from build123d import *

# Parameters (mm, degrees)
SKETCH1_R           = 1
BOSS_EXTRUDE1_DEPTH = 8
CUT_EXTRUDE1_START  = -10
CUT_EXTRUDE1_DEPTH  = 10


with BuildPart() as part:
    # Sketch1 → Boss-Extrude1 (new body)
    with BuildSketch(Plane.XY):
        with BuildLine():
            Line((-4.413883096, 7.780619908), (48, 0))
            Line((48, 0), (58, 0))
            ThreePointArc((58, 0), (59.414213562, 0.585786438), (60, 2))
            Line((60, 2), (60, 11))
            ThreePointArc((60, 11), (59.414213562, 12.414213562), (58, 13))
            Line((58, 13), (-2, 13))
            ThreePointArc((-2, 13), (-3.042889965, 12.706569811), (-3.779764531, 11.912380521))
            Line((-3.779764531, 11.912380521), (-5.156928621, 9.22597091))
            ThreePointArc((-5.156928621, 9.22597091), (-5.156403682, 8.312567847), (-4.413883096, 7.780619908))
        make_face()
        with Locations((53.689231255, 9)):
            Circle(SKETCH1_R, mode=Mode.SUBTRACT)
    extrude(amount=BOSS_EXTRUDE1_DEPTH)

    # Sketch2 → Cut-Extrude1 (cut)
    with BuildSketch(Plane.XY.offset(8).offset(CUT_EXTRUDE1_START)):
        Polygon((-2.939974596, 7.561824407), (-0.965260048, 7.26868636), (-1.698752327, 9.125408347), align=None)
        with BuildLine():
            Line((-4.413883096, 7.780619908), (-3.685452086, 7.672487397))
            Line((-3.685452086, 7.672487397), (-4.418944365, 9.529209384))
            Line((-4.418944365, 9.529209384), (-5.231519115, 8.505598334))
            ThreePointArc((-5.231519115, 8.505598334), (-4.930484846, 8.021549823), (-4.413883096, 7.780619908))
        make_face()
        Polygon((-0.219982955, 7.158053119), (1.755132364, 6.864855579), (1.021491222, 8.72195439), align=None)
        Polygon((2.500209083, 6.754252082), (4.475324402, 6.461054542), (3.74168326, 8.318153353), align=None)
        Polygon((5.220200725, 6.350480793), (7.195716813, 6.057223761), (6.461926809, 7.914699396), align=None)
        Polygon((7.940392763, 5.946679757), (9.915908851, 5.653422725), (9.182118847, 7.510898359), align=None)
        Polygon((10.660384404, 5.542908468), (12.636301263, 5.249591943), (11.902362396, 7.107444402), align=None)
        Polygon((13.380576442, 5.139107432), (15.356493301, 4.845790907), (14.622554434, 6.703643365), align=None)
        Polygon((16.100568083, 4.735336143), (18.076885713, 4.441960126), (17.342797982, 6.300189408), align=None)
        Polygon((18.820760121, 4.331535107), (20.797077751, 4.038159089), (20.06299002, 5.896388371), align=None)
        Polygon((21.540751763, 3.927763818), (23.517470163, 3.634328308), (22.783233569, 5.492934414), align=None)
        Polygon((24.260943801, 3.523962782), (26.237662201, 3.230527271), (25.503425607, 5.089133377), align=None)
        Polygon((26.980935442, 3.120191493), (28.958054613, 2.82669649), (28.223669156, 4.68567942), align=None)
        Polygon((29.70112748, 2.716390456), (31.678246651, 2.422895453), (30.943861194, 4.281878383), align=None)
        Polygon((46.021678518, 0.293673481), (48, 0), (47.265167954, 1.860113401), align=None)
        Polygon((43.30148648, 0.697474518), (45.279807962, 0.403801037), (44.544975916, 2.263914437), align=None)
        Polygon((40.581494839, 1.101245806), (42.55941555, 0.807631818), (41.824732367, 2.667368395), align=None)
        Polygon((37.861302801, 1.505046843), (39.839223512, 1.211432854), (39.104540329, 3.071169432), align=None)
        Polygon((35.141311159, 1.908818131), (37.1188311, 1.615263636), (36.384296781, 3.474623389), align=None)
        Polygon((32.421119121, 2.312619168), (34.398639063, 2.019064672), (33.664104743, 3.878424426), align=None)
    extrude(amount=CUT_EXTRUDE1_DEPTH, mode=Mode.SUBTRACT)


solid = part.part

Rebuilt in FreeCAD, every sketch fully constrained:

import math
import FreeCAD as App
import Part
import Sketcher
from FreeCAD import Vector
Q = App.Units.Quantity


def add_polygon(sketch, points):
    """Adds a closed chain of lines whose ends are joined by coincident constraints."""
    first, n = sketch.GeometryCount, len(points)
    for a, b in zip(points, points[1:] + points[:1]):
        sketch.addGeometry(Part.LineSegment(App.Vector(*a, 0), App.Vector(*b, 0)), False)
    for i in range(n):
        sketch.addConstraint(Sketcher.Constraint("Coincident", first + i, 2, first + (i + 1) % n, 1))

doc = App.newDocument("Part")
body = doc.addObject("PartDesign::Body", "Body")

# Sketch on XY plane
sketch1 = doc.addObject("Sketcher::SketchObject", "Sketch")
body.addObject(sketch1)
sketch1.AttachmentSupport = (doc.XY_Plane, [""])
sketch1.MapMode = "FlatFace"
sketch1.addGeometry(Part.LineSegment(Vector(-4.4, 7.8, 0), Vector(48, 0, 0)), False)
sketch1.addGeometry(Part.LineSegment(Vector(48, 0, 0), Vector(58, 0, 0)), False)
sketch1.addGeometry(Part.ArcOfCircle(Part.Circle(Vector(58, 2, 0), Vector(0, 0, 1), 2), math.radians(-90), math.radians(0)), False)
sketch1.addGeometry(Part.LineSegment(Vector(60, 2, 0), Vector(60, 11, 0)), False)
sketch1.addGeometry(Part.ArcOfCircle(Part.Circle(Vector(58, 11, 0), Vector(0, 0, 1), 2), math.radians(0), math.radians(90)), False)
sketch1.addGeometry(Part.LineSegment(Vector(58, 13, 0), Vector(-2, 13, 0)), False)
sketch1.addGeometry(Part.ArcOfCircle(Part.Circle(Vector(-2, 11, 0), Vector(0, 0, 1), 2), math.radians(90), math.radians(153)), False)
sketch1.addGeometry(Part.LineSegment(Vector(-3.8, 11.9, 0), Vector(-5.2, 9.2, 0)), False)
sketch1.addGeometry(Part.ArcOfCircle(Part.Circle(Vector(-4.3, 8.8, 0), Vector(0, 0, 1), 1), math.radians(153), math.radians(262)), False)
sketch1.addGeometry(Part.Circle(Vector(53.7, 9, 0), Vector(0, 0, 1), 1), False)
sketch1.addConstraint(Sketcher.Constraint("Coincident", 0, 2, 1, 1))
sketch1.addConstraint(Sketcher.Constraint("Tangent", 1, 2, 2, 1))
sketch1.addConstraint(Sketcher.Constraint("Tangent", 2, 2, 3, 1))
sketch1.addConstraint(Sketcher.Constraint("Tangent", 3, 2, 4, 1))
sketch1.addConstraint(Sketcher.Constraint("Tangent", 4, 2, 5, 1))
sketch1.addConstraint(Sketcher.Constraint("Tangent", 5, 2, 6, 1))
sketch1.addConstraint(Sketcher.Constraint("Tangent", 6, 2, 7, 1))
sketch1.addConstraint(Sketcher.Constraint("Tangent", 7, 2, 8, 1))
sketch1.addConstraint(Sketcher.Constraint("Tangent", 8, 2, 0, 1))
sketch1.addConstraint(Sketcher.Constraint("Horizontal", 1))
sketch1.addConstraint(Sketcher.Constraint("Vertical", 3))
sketch1.addConstraint(Sketcher.Constraint("Horizontal", 5))
sketch1.addConstraint(Sketcher.Constraint("Equal", 2, 4))
sketch1.addConstraint(Sketcher.Constraint("Equal", 4, 6))
sketch1.addConstraint(Sketcher.Constraint("Equal", 8, 9))
sketch1.addConstraint(Sketcher.Constraint("PointOnObject", 0, 2, -1))
sketch1.addConstraint(Sketcher.Constraint("Diameter", 9, Q("2 mm")))
sketch1.addConstraint(Sketcher.Constraint("Radius", 2, Q("2 mm")))
sketch1.addConstraint(Sketcher.Constraint("DistanceX", 1, 1, 1, 2, Q("10 mm")))
sketch1.addConstraint(Sketcher.Constraint("DistanceX", 5, 2, 5, 1, Q("60 mm")))
sketch1.addConstraint(Sketcher.Constraint("DistanceY", 3, 1, 3, 2, Q("9 mm")))
sketch1.addConstraint(Sketcher.Constraint("DistanceX", -1, 1, 2, 3, Q("58 mm")))
sketch1.addConstraint(Sketcher.Constraint("DistanceY", -1, 1, 9, 3, Q("9 mm")))
sketch1.addConstraint(Sketcher.Constraint("DistanceY", 8, 3, 6, 2, Q("3.1426 mm")))
sketch1.addConstraint(Sketcher.Constraint("DistanceY", -1, 1, 8, 3, Q("8.769781 mm")))
sketch1.addConstraint(Sketcher.Constraint("DistanceX", -1, 1, 9, 3, Q("53.689231 mm")))
pad1 = doc.addObject("PartDesign::Pad", "Pad")
body.addObject(pad1)
pad1.Profile = sketch1
pad1.Length = 8

# Sketch on XY plane
sketch2 = doc.addObject("Sketcher::SketchObject", "Sketch001")
body.addObject(sketch2)
sketch2.AttachmentSupport = (doc.XY_Plane, [""])
sketch2.MapMode = "FlatFace"
sketch2.AttachmentOffset = App.Placement(Vector(0, 0, -2), App.Rotation())
add_polygon(sketch2, [(-2.9, 7.6), (-1, 7.3), (-1.7, 9.1)])  # lines 0-2
sketch2.addGeometry(Part.LineSegment(Vector(-4.4, 7.8, 0), Vector(-3.7, 7.7, 0)), False)  # 3
sketch2.addGeometry(Part.LineSegment(Vector(-3.7, 7.7, 0), Vector(-4.4, 9.5, 0)), False)  # 4
sketch2.addGeometry(Part.LineSegment(Vector(-4.4, 9.5, 0), Vector(-5.2, 8.5, 0)), False)  # 5
sketch2.addGeometry(Part.ArcOfCircle(Part.Circle(Vector(-4.3, 8.8, 0), Vector(0, 0, 1), 1), math.radians(-165), math.radians(-98)), False)  # 6
add_polygon(sketch2, [(-0.2, 7.2), (1.8, 6.9), (1, 8.7)])  # lines 7-9
add_polygon(sketch2, [(2.5, 6.8), (4.5, 6.5), (3.7, 8.3)])  # lines 10-12
add_polygon(sketch2, [(5.2, 6.4), (7.2, 6.1), (6.5, 7.9)])  # lines 13-15
add_polygon(sketch2, [(7.9, 5.9), (9.9, 5.7), (9.2, 7.5)])  # lines 16-18
add_polygon(sketch2, [(10.7, 5.5), (12.6, 5.2), (11.9, 7.1)])  # lines 19-21
add_polygon(sketch2, [(13.4, 5.1), (15.4, 4.8), (14.6, 6.7)])  # lines 22-24
add_polygon(sketch2, [(16.1, 4.7), (18.1, 4.4), (17.3, 6.3)])  # lines 25-27
add_polygon(sketch2, [(18.8, 4.3), (20.8, 4), (20.1, 5.9)])  # lines 28-30
add_polygon(sketch2, [(21.5, 3.9), (23.5, 3.6), (22.8, 5.5)])  # lines 31-33
add_polygon(sketch2, [(24.3, 3.5), (26.2, 3.2), (25.5, 5.1)])  # lines 34-36
add_polygon(sketch2, [(27, 3.1), (29, 2.8), (28.2, 4.7)])  # lines 37-39
add_polygon(sketch2, [(29.7, 2.7), (31.7, 2.4), (30.9, 4.3)])  # lines 40-42
add_polygon(sketch2, [(46, 0.3), (48, 0), (47.3, 1.9)])  # lines 43-45
add_polygon(sketch2, [(43.3, 0.7), (45.3, 0.4), (44.5, 2.3)])  # lines 46-48
add_polygon(sketch2, [(40.6, 1.1), (42.6, 0.8), (41.8, 2.7)])  # lines 49-51
add_polygon(sketch2, [(37.9, 1.5), (39.8, 1.2), (39.1, 3.1)])  # lines 52-54
add_polygon(sketch2, [(35.1, 1.9), (37.1, 1.6), (36.4, 3.5)])  # lines 55-57
add_polygon(sketch2, [(32.4, 2.3), (34.4, 2), (33.7, 3.9)])  # lines 58-60
sketch2.addConstraint(Sketcher.Constraint("Coincident", 3, 2, 4, 1))
sketch2.addConstraint(Sketcher.Constraint("Coincident", 4, 2, 5, 1))
sketch2.addConstraint(Sketcher.Constraint("Coincident", 5, 2, 6, 1))
sketch2.addConstraint(Sketcher.Constraint("Tangent", 6, 2, 3, 1))
sketch2.addConstraint(Sketcher.Constraint("PointOnObject", 43, 2, -1))
sketch2.addConstraint(Sketcher.Constraint("Parallel", 0, 3))
sketch2.addConstraint(Sketcher.Constraint("Parallel", 1, 4))
sketch2.addConstraint(Sketcher.Constraint("Parallel", 2, 5))
sketch2.addConstraint(Sketcher.Constraint("Parallel", 3, 7))
sketch2.addConstraint(Sketcher.Constraint("Parallel", 4, 8))
sketch2.addConstraint(Sketcher.Constraint("Parallel", 5, 9))
sketch2.addConstraint(Sketcher.Constraint("Parallel", 7, 10))
sketch2.addConstraint(Sketcher.Constraint("Parallel", 8, 11))
sketch2.addConstraint(Sketcher.Constraint("Parallel", 9, 12))
sketch2.addConstraint(Sketcher.Constraint("Parallel", 10, 13))
sketch2.addConstraint(Sketcher.Constraint("Parallel", 11, 14))
sketch2.addConstraint(Sketcher.Constraint("Parallel", 12, 15))
sketch2.addConstraint(Sketcher.Constraint("Parallel", 13, 16))
sketch2.addConstraint(Sketcher.Constraint("Parallel", 14, 17))
sketch2.addConstraint(Sketcher.Constraint("Parallel", 15, 18))
sketch2.addConstraint(Sketcher.Constraint("Parallel", 16, 19))
sketch2.addConstraint(Sketcher.Constraint("Parallel", 17, 20))
sketch2.addConstraint(Sketcher.Constraint("Parallel", 18, 21))
sketch2.addConstraint(Sketcher.Constraint("Parallel", 19, 22))
sketch2.addConstraint(Sketcher.Constraint("Parallel", 20, 23))
sketch2.addConstraint(Sketcher.Constraint("Parallel", 21, 24))
sketch2.addConstraint(Sketcher.Constraint("Parallel", 22, 25))
sketch2.addConstraint(Sketcher.Constraint("Parallel", 23, 26))
sketch2.addConstraint(Sketcher.Constraint("Parallel", 24, 27))
sketch2.addConstraint(Sketcher.Constraint("Parallel", 25, 28))
sketch2.addConstraint(Sketcher.Constraint("Parallel", 26, 29))
sketch2.addConstraint(Sketcher.Constraint("Parallel", 27, 30))
sketch2.addConstraint(Sketcher.Constraint("Parallel", 28, 31))
sketch2.addConstraint(Sketcher.Constraint("Parallel", 29, 32))
sketch2.addConstraint(Sketcher.Constraint("Parallel", 30, 33))
sketch2.addConstraint(Sketcher.Constraint("Parallel", 31, 34))
sketch2.addConstraint(Sketcher.Constraint("Parallel", 32, 35))
sketch2.addConstraint(Sketcher.Constraint("Parallel", 33, 36))
sketch2.addConstraint(Sketcher.Constraint("Parallel", 34, 37))
sketch2.addConstraint(Sketcher.Constraint("Parallel", 35, 38))
sketch2.addConstraint(Sketcher.Constraint("Parallel", 36, 39))
sketch2.addConstraint(Sketcher.Constraint("Parallel", 37, 40))
sketch2.addConstraint(Sketcher.Constraint("Parallel", 38, 41))
sketch2.addConstraint(Sketcher.Constraint("Parallel", 39, 42))
sketch2.addConstraint(Sketcher.Constraint("Parallel", 40, 43))
sketch2.addConstraint(Sketcher.Constraint("Parallel", 41, 44))
sketch2.addConstraint(Sketcher.Constraint("Parallel", 42, 45))
sketch2.addConstraint(Sketcher.Constraint("Parallel", 43, 46))
sketch2.addConstraint(Sketcher.Constraint("Parallel", 44, 47))
sketch2.addConstraint(Sketcher.Constraint("Parallel", 45, 48))
sketch2.addConstraint(Sketcher.Constraint("Parallel", 46, 49))
sketch2.addConstraint(Sketcher.Constraint("Parallel", 47, 50))
sketch2.addConstraint(Sketcher.Constraint("Parallel", 48, 51))
sketch2.addConstraint(Sketcher.Constraint("Parallel", 49, 52))
sketch2.addConstraint(Sketcher.Constraint("Parallel", 50, 53))
sketch2.addConstraint(Sketcher.Constraint("Parallel", 51, 54))
sketch2.addConstraint(Sketcher.Constraint("Parallel", 52, 55))
sketch2.addConstraint(Sketcher.Constraint("Parallel", 53, 56))
sketch2.addConstraint(Sketcher.Constraint("Parallel", 54, 57))
sketch2.addConstraint(Sketcher.Constraint("Parallel", 55, 58))
sketch2.addConstraint(Sketcher.Constraint("Parallel", 56, 59))
sketch2.addConstraint(Sketcher.Constraint("Parallel", 57, 60))
sketch2.addConstraint(Sketcher.Constraint("Equal", 0, 1))
sketch2.addConstraint(Sketcher.Constraint("Equal", 1, 2))
sketch2.addConstraint(Sketcher.Constraint("Equal", 2, 4))
sketch2.addConstraint(Sketcher.Constraint("Equal", 9, 10))
sketch2.addConstraint(Sketcher.Constraint("Equal", 15, 16))
sketch2.addConstraint(Sketcher.Constraint("Equal", 21, 22))
sketch2.addConstraint(Sketcher.Constraint("Equal", 27, 28))
sketch2.addConstraint(Sketcher.Constraint("Equal", 33, 34))
sketch2.addConstraint(Sketcher.Constraint("Equal", 39, 40))
sketch2.addConstraint(Sketcher.Constraint("Equal", 45, 46))
sketch2.addConstraint(Sketcher.Constraint("Equal", 51, 52))
sketch2.addConstraint(Sketcher.Constraint("Equal", 57, 58))
sketch2.addConstraint(Sketcher.Constraint("Radius", 6, Q("1 mm")))
sketch2.addConstraint(Sketcher.Constraint("Distance", 43, Q("2 mm")))
sketch2.addConstraint(Sketcher.Constraint("DistanceX", -1, 1, 43, 2, Q("48 mm")))
sketch2.addConstraint(Sketcher.Constraint("DistanceY", -1, 1, 5, 2, Q("8.505598 mm")))
sketch2.addConstraint(Sketcher.Constraint("DistanceY", -1, 1, 14, 2, Q("7.914699 mm")))
sketch2.addConstraint(Sketcher.Constraint("DistanceX", -1, 1, 15, 2, Q("5.220201 mm")))
sketch2.addConstraint(Sketcher.Constraint("DistanceY", -1, 1, 17, 2, Q("7.510898 mm")))
sketch2.addConstraint(Sketcher.Constraint("DistanceX", -1, 1, 19, 2, Q("12.636301 mm")))
sketch2.addConstraint(Sketcher.Constraint("DistanceY", -1, 1, 46, 2, Q("0.403801 mm")))
sketch2.addConstraint(Sketcher.Constraint("Distance", 7, Q("1.996759 mm")))
sketch2.addConstraint(Sketcher.Constraint("Distance", 19, Q("1.997569 mm")))
sketch2.addConstraint(Sketcher.Constraint("Distance", 31, Q("1.998379 mm")))
sketch2.addConstraint(Sketcher.Constraint("Distance", 55, Q("1.99919 mm")))
sketch2.addConstraint(Sketcher.Constraint("DistanceY", -1, 1, 6, 3, Q("8.769781 mm")))
sketch2.addConstraint(Sketcher.Constraint("DistanceX", 0, 2, -1, 1, Q("0.96526 mm")))
sketch2.addConstraint(Sketcher.Constraint("DistanceY", -1, 1, 1, 2, Q("9.125408 mm")))
sketch2.addConstraint(Sketcher.Constraint("DistanceY", -1, 1, 4, 2, Q("9.529209 mm")))
sketch2.addConstraint(Sketcher.Constraint("DistanceX", 5, 2, -1, 1, Q("5.231519 mm")))
sketch2.addConstraint(Sketcher.Constraint("DistanceY", -1, 1, 6, 2, Q("7.78062 mm")))
sketch2.addConstraint(Sketcher.Constraint("DistanceX", -1, 1, 8, 2, Q("1.021491 mm")))
sketch2.addConstraint(Sketcher.Constraint("DistanceX", -1, 1, 12, 2, Q("2.500209 mm")))
sketch2.addConstraint(Sketcher.Constraint("DistanceY", -1, 1, 15, 2, Q("6.350481 mm")))
sketch2.addConstraint(Sketcher.Constraint("DistanceX", -1, 1, 16, 2, Q("9.915909 mm")))
sketch2.addConstraint(Sketcher.Constraint("DistanceY", -1, 1, 19, 2, Q("5.249592 mm")))
sketch2.addConstraint(Sketcher.Constraint("DistanceY", -1, 1, 22, 2, Q("4.845791 mm")))
sketch2.addConstraint(Sketcher.Constraint("DistanceY", -1, 1, 25, 2, Q("4.44196 mm")))
sketch2.addConstraint(Sketcher.Constraint("DistanceY", -1, 1, 26, 2, Q("6.300189 mm")))
sketch2.addConstraint(Sketcher.Constraint("DistanceX", -1, 1, 27, 2, Q("16.100568 mm")))
sketch2.addConstraint(Sketcher.Constraint("DistanceY", -1, 1, 28, 2, Q("4.038159 mm")))
sketch2.addConstraint(Sketcher.Constraint("DistanceX", -1, 1, 29, 2, Q("20.06299 mm")))
sketch2.addConstraint(Sketcher.Constraint("DistanceX", -1, 1, 31, 2, Q("23.51747 mm")))
sketch2.addConstraint(Sketcher.Constraint("DistanceY", -1, 1, 31, 2, Q("3.634328 mm")))
sketch2.addConstraint(Sketcher.Constraint("DistanceX", -1, 1, 38, 2, Q("28.223669 mm")))
sketch2.addConstraint(Sketcher.Constraint("DistanceY", -1, 1, 38, 2, Q("4.685679 mm")))
sketch2.addConstraint(Sketcher.Constraint("DistanceY", -1, 1, 39, 2, Q("3.120191 mm")))
sketch2.addConstraint(Sketcher.Constraint("DistanceX", -1, 1, 41, 2, Q("30.943861 mm")))
sketch2.addConstraint(Sketcher.Constraint("DistanceY", -1, 1, 41, 2, Q("4.281878 mm")))
sketch2.addConstraint(Sketcher.Constraint("DistanceY", -1, 1, 49, 2, Q("0.807632 mm")))
sketch2.addConstraint(Sketcher.Constraint("DistanceY", -1, 1, 50, 2, Q("2.667368 mm")))
sketch2.addConstraint(Sketcher.Constraint("DistanceX", -1, 1, 53, 2, Q("39.10454 mm")))
sketch2.addConstraint(Sketcher.Constraint("DistanceY", -1, 1, 53, 2, Q("3.071169 mm")))
sketch2.addConstraint(Sketcher.Constraint("DistanceX", -1, 1, 55, 2, Q("37.118831 mm")))
sketch2.addConstraint(Sketcher.Constraint("DistanceY", -1, 1, 57, 2, Q("1.908818 mm")))
sketch2.addConstraint(Sketcher.Constraint("DistanceX", -1, 1, 58, 2, Q("34.398639 mm")))
sketch2.addConstraint(Sketcher.Constraint("DistanceY", -1, 1, 60, 2, Q("2.312619 mm")))
sketch2.addConstraint(Sketcher.Constraint("DistanceY", -1, 1, 7, 2, Q("6.864856 mm")))
sketch2.addConstraint(Sketcher.Constraint("DistanceY", -1, 1, 10, 2, Q("6.461055 mm")))
sketch2.addConstraint(Sketcher.Constraint("DistanceX", -1, 1, 22, 2, Q("15.356493 mm")))
sketch2.addConstraint(Sketcher.Constraint("DistanceX", -1, 1, 34, 2, Q("26.237662 mm")))
sketch2.addConstraint(Sketcher.Constraint("DistanceY", -1, 1, 34, 2, Q("3.230527 mm")))
sketch2.addConstraint(Sketcher.Constraint("DistanceX", -1, 1, 46, 2, Q("45.279808 mm")))
sketch2.addConstraint(Sketcher.Constraint("DistanceX", -1, 1, 49, 2, Q("42.559416 mm")))
pocket1 = doc.addObject("PartDesign::Pocket", "Pocket")
body.addObject(pocket1)
pocket1.Profile = sketch2
pocket1.Length = 10
pocket1.Reversed = True

doc.recompute()
